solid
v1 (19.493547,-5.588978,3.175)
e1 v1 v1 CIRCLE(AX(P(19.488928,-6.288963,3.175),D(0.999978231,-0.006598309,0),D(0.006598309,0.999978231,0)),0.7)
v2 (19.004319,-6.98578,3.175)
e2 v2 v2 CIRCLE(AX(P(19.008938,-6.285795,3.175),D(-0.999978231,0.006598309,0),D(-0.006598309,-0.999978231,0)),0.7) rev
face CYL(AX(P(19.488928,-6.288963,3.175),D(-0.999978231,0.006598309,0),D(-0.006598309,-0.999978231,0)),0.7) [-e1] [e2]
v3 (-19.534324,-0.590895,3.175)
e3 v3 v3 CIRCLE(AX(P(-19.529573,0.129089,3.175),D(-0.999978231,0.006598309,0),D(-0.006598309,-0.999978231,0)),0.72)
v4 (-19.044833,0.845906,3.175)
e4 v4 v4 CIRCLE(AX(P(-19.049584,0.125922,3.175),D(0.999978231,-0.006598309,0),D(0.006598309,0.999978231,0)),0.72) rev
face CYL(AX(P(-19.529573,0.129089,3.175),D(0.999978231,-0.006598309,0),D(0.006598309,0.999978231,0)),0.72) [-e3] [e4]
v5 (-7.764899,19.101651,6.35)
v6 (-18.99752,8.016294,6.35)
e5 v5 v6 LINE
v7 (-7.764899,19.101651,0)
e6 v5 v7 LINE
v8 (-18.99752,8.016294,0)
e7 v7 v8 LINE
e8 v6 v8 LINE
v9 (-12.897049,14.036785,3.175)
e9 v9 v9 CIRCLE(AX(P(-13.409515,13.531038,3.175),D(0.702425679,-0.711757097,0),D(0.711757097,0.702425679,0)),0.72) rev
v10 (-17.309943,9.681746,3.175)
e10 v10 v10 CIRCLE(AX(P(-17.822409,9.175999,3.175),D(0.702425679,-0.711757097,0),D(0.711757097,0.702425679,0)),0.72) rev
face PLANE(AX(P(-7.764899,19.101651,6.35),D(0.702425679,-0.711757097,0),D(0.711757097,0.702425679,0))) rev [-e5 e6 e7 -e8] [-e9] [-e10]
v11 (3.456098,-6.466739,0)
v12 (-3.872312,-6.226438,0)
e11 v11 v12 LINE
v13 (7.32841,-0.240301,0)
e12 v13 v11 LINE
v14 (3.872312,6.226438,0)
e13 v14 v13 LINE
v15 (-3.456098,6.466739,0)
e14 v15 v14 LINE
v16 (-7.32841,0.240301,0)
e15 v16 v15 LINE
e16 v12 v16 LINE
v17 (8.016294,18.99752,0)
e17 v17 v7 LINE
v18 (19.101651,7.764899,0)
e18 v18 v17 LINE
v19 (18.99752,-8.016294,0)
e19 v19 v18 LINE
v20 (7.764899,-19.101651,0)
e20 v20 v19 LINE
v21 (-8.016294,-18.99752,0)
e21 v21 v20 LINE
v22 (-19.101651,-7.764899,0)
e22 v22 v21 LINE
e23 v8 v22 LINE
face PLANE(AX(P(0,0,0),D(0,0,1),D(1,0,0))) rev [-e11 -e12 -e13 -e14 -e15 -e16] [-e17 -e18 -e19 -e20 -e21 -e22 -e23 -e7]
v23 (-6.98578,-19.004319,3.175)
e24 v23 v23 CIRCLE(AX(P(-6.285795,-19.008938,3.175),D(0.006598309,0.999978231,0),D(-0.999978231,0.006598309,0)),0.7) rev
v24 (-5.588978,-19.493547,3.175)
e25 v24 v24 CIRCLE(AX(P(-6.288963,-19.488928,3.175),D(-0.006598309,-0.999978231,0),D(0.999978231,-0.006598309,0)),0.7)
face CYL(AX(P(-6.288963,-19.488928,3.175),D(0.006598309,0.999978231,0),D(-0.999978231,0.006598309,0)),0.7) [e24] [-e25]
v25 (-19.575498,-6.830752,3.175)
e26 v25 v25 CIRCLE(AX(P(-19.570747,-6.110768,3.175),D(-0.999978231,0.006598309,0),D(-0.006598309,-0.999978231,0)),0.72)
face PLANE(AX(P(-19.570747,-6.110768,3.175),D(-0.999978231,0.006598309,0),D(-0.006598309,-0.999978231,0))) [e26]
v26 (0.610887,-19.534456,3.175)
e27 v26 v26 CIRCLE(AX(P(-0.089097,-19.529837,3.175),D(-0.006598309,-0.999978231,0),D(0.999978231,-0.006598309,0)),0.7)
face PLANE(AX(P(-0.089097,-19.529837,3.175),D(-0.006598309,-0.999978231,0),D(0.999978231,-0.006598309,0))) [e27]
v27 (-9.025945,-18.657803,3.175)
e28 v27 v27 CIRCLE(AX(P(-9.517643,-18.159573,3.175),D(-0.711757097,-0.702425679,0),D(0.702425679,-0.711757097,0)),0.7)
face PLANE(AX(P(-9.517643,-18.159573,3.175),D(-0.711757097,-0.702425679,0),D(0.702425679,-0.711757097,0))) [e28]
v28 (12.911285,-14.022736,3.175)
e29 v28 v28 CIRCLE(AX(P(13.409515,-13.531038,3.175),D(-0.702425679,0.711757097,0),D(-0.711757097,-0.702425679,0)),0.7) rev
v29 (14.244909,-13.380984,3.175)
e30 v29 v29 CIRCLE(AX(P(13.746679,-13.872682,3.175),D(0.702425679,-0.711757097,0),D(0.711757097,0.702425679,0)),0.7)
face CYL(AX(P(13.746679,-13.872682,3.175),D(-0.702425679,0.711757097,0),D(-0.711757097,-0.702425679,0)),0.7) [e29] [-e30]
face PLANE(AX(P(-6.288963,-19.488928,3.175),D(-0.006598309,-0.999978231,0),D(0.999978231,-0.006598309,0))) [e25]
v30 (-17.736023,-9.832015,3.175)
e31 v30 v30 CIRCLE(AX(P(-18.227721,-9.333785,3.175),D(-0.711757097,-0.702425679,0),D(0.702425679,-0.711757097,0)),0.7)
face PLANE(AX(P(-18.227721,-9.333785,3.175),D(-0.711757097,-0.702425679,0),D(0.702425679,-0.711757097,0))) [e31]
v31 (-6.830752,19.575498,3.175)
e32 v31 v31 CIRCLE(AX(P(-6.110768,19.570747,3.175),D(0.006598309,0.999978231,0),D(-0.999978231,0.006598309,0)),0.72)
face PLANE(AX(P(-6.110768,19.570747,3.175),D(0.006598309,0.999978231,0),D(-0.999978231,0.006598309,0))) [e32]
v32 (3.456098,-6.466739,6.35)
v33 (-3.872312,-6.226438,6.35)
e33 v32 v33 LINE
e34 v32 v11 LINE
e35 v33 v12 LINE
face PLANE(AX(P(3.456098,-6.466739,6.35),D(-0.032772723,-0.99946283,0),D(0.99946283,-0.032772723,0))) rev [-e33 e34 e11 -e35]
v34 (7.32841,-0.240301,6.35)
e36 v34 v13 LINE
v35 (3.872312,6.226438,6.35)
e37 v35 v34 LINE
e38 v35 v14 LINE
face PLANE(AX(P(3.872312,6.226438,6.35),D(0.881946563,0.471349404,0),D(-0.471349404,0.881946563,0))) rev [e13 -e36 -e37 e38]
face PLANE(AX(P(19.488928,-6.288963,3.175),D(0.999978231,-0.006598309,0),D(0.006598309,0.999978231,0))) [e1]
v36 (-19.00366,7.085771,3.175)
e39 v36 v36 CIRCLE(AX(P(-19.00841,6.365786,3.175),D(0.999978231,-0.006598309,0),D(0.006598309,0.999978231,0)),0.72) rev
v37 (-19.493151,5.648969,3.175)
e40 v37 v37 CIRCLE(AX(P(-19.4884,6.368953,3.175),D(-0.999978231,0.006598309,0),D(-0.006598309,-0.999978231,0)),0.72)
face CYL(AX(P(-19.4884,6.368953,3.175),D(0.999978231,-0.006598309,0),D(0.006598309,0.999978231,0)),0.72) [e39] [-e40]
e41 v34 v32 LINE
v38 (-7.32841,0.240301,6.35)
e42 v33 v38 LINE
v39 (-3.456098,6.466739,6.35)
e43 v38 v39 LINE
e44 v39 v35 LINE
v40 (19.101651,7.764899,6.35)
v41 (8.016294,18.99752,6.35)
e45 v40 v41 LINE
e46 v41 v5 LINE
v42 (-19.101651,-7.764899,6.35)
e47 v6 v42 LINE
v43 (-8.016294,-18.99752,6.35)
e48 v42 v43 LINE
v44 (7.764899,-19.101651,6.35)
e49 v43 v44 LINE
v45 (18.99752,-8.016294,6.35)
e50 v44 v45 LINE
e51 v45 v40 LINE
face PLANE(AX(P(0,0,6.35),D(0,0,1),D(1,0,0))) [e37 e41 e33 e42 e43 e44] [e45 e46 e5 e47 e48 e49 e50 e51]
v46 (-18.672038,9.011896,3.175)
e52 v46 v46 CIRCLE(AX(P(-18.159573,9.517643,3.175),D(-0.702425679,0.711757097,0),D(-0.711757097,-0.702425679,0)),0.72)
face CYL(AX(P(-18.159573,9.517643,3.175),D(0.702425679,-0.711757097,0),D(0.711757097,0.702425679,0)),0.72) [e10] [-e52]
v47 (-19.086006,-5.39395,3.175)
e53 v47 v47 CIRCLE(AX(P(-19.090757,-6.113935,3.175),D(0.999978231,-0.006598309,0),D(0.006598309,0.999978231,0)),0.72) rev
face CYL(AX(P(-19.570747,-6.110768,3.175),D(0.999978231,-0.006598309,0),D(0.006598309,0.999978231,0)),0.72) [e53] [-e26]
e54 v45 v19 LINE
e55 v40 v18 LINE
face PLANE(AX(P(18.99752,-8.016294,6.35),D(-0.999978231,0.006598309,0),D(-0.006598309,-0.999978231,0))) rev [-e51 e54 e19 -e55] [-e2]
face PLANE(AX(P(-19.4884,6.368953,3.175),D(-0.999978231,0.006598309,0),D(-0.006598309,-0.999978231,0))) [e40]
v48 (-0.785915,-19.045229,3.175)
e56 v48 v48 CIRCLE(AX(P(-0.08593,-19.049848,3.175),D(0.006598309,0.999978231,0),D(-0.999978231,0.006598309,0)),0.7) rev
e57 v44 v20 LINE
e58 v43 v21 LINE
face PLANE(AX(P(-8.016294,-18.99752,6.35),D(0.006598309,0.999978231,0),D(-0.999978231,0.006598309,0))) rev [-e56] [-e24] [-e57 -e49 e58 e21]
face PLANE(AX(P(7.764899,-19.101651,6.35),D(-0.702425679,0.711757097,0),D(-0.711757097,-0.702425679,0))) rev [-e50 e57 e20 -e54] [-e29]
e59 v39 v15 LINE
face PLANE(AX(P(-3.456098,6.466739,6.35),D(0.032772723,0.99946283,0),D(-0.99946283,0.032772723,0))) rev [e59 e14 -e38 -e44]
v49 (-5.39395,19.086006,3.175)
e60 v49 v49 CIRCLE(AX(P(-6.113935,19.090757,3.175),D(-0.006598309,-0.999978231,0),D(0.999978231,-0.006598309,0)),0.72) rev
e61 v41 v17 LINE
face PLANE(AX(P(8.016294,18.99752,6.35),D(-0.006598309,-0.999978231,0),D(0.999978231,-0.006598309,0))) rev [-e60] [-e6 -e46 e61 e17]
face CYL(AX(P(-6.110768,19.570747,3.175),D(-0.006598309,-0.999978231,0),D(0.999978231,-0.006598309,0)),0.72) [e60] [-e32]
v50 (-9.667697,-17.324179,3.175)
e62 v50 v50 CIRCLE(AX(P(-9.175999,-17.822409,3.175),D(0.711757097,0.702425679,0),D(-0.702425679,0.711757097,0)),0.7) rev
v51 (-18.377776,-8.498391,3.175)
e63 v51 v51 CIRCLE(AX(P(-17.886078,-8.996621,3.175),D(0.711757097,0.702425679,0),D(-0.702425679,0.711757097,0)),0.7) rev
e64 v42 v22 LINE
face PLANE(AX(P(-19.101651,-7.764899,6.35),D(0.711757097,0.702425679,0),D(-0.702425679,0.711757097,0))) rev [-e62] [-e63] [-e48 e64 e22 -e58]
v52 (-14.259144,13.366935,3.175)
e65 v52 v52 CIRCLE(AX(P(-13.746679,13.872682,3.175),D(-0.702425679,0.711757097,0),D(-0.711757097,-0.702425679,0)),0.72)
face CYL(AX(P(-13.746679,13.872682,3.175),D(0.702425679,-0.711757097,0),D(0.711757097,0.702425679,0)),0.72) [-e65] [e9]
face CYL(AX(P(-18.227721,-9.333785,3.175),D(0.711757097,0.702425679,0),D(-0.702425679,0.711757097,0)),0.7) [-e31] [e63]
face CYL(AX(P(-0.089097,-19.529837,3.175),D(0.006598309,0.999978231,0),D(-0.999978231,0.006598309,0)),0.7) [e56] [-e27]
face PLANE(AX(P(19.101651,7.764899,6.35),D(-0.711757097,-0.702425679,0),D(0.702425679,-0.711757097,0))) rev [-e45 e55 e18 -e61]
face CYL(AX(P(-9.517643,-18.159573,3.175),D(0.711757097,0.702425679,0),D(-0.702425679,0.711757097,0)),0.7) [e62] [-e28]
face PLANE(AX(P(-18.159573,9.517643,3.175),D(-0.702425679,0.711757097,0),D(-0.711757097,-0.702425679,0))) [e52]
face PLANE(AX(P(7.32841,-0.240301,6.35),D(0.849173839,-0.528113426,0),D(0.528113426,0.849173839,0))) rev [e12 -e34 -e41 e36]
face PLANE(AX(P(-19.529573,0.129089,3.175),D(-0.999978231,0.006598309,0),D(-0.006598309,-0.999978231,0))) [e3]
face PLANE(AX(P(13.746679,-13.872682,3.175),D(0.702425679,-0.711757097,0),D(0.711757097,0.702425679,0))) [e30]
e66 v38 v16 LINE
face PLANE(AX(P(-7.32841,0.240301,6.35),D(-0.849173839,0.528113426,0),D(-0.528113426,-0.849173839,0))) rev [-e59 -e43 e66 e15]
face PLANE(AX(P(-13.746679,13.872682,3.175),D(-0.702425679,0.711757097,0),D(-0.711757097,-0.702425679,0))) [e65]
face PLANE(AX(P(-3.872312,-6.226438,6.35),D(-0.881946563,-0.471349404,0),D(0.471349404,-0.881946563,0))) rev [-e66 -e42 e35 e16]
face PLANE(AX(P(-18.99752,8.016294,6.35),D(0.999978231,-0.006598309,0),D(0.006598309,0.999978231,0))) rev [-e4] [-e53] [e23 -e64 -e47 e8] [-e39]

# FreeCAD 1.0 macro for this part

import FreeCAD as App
import Part
import Sketcher

V = App.Vector


def add_polygon(sketch, points):
    """Adds a closed chain of lines whose ends are joined by coincident constraints."""
    first, n = sketch.GeometryCount, len(points)
    for a, b in zip(points, points[1:] + points[:1]):
        sketch.addGeometry(Part.LineSegment(App.Vector(*a, 0), App.Vector(*b, 0)), False)
    for i in range(n):
        sketch.addConstraint(Sketcher.Constraint("Coincident", first + i, 2, first + (i + 1) % n, 1))

doc = App.newDocument("Part")
body = doc.addObject("PartDesign::Body", "Body")

sketch1 = doc.addObject("Sketcher::SketchObject", "Sketch")
body.addObject(sketch1)
sketch1.AttachmentSupport = (doc.XY_Plane, [""])
sketch1.MapMode = "FlatFace"
add_polygon(sketch1, [(-8, 19), (-19, 8), (-19, -8), (-8, -19), (8, -19), (19, -8), (19, 8), (8, 19)])
sketch1.addConstraint([
    Sketcher.Constraint("Symmetric", 0, 2, 4, 2, -1, 1),
    Sketcher.Constraint("Symmetric", 1, 2, 5, 2, -1, 1),
    Sketcher.Constraint("Symmetric", 2, 2, 6, 2, -1, 1),
    Sketcher.Constraint("Symmetric", 3, 2, 7, 2, -1, 1),
    Sketcher.Constraint("Perpendicular", 0, 2),
    Sketcher.Constraint("Perpendicular", 1, 3),
    Sketcher.Constraint("Equal", 0, 1),
    Sketcher.Constraint("Equal", 1, 2),
    Sketcher.Constraint("Equal", 2, 3),
    Sketcher.Constraint("DistanceY", 1, 2, -1, 1, 7.764899),
    Sketcher.Constraint("DistanceX", 0, 2, -1, 1, 18.99752),
    Sketcher.Constraint("DistanceX", 1, 2, -1, 1, 19.101651),
])
pad1 = doc.addObject("PartDesign::Pad", "Pad")
body.addObject(pad1)
pad1.Profile = sketch1
pad1.Length = 6.35

sketch2 = doc.addObject("Sketcher::SketchObject", "Sketch001")
body.addObject(sketch2)
sketch2.Placement = App.Placement(V(0.125698, 19.049585, 0), App.Rotation(V(0.999978231, -0.006598309, 0), V(0, 0, -1), V(0.006598309, 0.999978231, 0), "ZXY"))
sketch2.addGeometry(Part.Circle(V(-6.2, -3.2, 0), V(0, 0, 1), 0.7), False)
sketch2.addConstraint([
    Sketcher.Constraint("Diameter", 0, 1.44),
    Sketcher.Constraint("DistanceY", 0, 3, -1, 1, 3.175),
    Sketcher.Constraint("DistanceX", 0, 3, -1, 1, 6.239768),
])
pad2 = doc.addObject("PartDesign::Pad", "Pad001")
body.addObject(pad2)
pad2.Profile = sketch2
pad2.Length = 0.48

sketch3 = doc.addObject("Sketcher::SketchObject", "Sketch002")
body.addObject(sketch3)
sketch3.Placement = App.Placement(V(-13.381209, 13.558973, 0), App.Rotation(V(0.711757097, 0.702425679, 0), V(0, 0, -1), V(-0.702425679, 0.711757097, 0), "ZXY"))
sketch3.addGeometry([
    Part.Circle(V(-6.2, -3.2, 0), V(0, 0, 1), 0.7),
    Part.Circle(V(0, -3.2, 0), V(0, 0, 1), 0.7),
], False)
sketch3.addConstraint([
    Sketcher.Constraint("Equal", 0, 1),
    Sketcher.Constraint("Horizontal", 0, 3, 1, 3),
    Sketcher.Constraint("Diameter", 0, 1.44),
    Sketcher.Constraint("DistanceX", 0, 3, 1, 3, 6.2),
    Sketcher.Constraint("DistanceY", 0, 3, -1, 1, 3.175),
    Sketcher.Constraint("DistanceX", 0, 3, -1, 1, 6.239768),
])
pad3 = doc.addObject("PartDesign::Pad", "Pad002")
body.addObject(pad3)
pad3.Profile = sketch3
pad3.Length = 0.48

sketch4 = doc.addObject("Sketcher::SketchObject", "Sketch003")
body.addObject(sketch4)
sketch4.Placement = App.Placement(V(-19.049585, 0.125698, 0), App.Rotation(V(0, 0, 1), V(0.006598309, 0.999978231, 0), V(-0.999978231, 0.006598309, 0), "ZXY"))
sketch4.addGeometry([
    Part.Circle(V(3.2, -6.2, 0), V(0, 0, 1), 0.7),
    Part.Circle(V(3.2, 0, 0), V(0, 0, 1), 0.7),
    Part.Circle(V(3.2, 6.2, 0), V(0, 0, 1), 0.7),
], False)
sketch4.addConstraint([
    Sketcher.Constraint("Equal", 0, 1),
    Sketcher.Constraint("Equal", 1, 2),
    Sketcher.Constraint("Vertical", 0, 3, 1, 3),
    Sketcher.Constraint("Vertical", 1, 3, 2, 3),
    Sketcher.Constraint("Diameter", 0, 1.44),
    Sketcher.Constraint("DistanceY", 1, 3, 2, 3, 6.24),
    Sketcher.Constraint("DistanceX", -1, 1, 0, 3, 3.175),
    Sketcher.Constraint("DistanceY", 0, 3, -1, 1, 6.239768),
    Sketcher.Constraint("DistanceY", -1, 1, 1, 3, 0.000224),
])
pad4 = doc.addObject("PartDesign::Pad", "Pad003")
body.addObject(pad4)
pad4.Profile = sketch4
pad4.Length = 0.48

sketch5 = doc.addObject("Sketcher::SketchObject", "Sketch004")
body.addObject(sketch5)
sketch5.Placement = App.Placement(V(-13.558973, -13.381209, 0), App.Rotation(V(0, 0, 1), V(-0.702425679, 0.711757097, 0), V(-0.711757097, -0.702425679, 0), "ZXY"))
sketch5.addGeometry([
    Part.Circle(V(3.2, -6.2, 0), V(0, 0, 1), 0.7),
    Part.Circle(V(3.2, 6.2, 0), V(0, 0, 1), 0.7),
], False)
sketch5.addConstraint([
    Sketcher.Constraint("Equal", 0, 1),
    Sketcher.Constraint("Vertical", 0, 3, 1, 3),
    Sketcher.Constraint("Diameter", 0, 1.4),
    Sketcher.Constraint("DistanceY", 0, 3, 1, 3, 12.4),
    Sketcher.Constraint("DistanceX", -1, 1, 0, 3, 3.175),
    Sketcher.Constraint("DistanceY", 0, 3, -1, 1, 6.239768),
])
pad5 = doc.addObject("PartDesign::Pad", "Pad004")
body.addObject(pad5)
pad5.Profile = sketch5
pad5.Length = 0.48

sketch6 = doc.addObject("Sketcher::SketchObject", "Sketch005")
body.addObject(sketch6)
sketch6.Placement = App.Placement(V(-0.125698, -19.049585, 0), App.Rotation(V(-0.999978231, 0.006598309, 0), V(0, 0, -1), V(-0.006598309, -0.999978231, 0), "ZXY"))
sketch6.addGeometry([
    Part.Circle(V(0, -3.2, 0), V(0, 0, 1), 0.7),
    Part.Circle(V(6.2, -3.2, 0), V(0, 0, 1), 0.7),
], False)
sketch6.addConstraint([
    Sketcher.Constraint("Equal", 0, 1),
    Sketcher.Constraint("Horizontal", 0, 3, 1, 3),
    Sketcher.Constraint("Diameter", 0, 1.4),
    Sketcher.Constraint("DistanceX", 0, 3, 1, 3, 6.2),
    Sketcher.Constraint("DistanceY", 0, 3, -1, 1, 3.175),
    Sketcher.Constraint("DistanceX", 0, 3, -1, 1, 0.039768),
])
pad6 = doc.addObject("PartDesign::Pad", "Pad005")
body.addObject(pad6)
pad6.Profile = sketch6
pad6.Length = 0.48

sketch7 = doc.addObject("Sketcher::SketchObject", "Sketch006")
body.addObject(sketch7)
sketch7.Placement = App.Placement(V(13.381209, -13.558973, 0), App.Rotation(V(-0.711757097, -0.702425679, 0), V(0, 0, -1), V(0.702425679, -0.711757097, 0), "ZXY"))
sketch7.addGeometry(Part.Circle(V(0, -3.2, 0), V(0, 0, 1), 0.7), False)
sketch7.addConstraint([
    Sketcher.Constraint("Diameter", 0, 1.4),
    Sketcher.Constraint("DistanceY", 0, 3, -1, 1, 3.175),
    Sketcher.Constraint("DistanceX", 0, 3, -1, 1, 0.039768),
])
pad7 = doc.addObject("PartDesign::Pad", "Pad006")
body.addObject(pad7)
pad7.Profile = sketch7
pad7.Length = 0.48

sketch8 = doc.addObject("Sketcher::SketchObject", "Sketch007")
body.addObject(sketch8)
sketch8.Placement = App.Placement(V(19.049585, -0.125698, 0), App.Rotation(V(0, 0, -1), V(0.006598309, 0.999978231, 0), V(0.999978231, -0.006598309, 0), "ZXY"))
sketch8.addGeometry(Part.Circle(V(-3.2, -6.2, 0), V(0, 0, 1), 0.7), False)
sketch8.addConstraint([
    Sketcher.Constraint("Diameter", 0, 1.4),
    Sketcher.Constraint("DistanceX", 0, 3, -1, 1, 3.175),
    Sketcher.Constraint("DistanceY", 0, 3, -1, 1, 6.160232),
])
pad8 = doc.addObject("PartDesign::Pad", "Pad007")
body.addObject(pad8)
pad8.Profile = sketch8
pad8.Length = 0.48

sketch9 = doc.addObject("Sketcher::SketchObject", "Sketch008")
body.addObject(sketch9)
sketch9.AttachmentSupport = (doc.XY_Plane, [""])
sketch9.MapMode = "FlatFace"
add_polygon(sketch9, [(4, 6), (7, 0), (3, -6), (-4, -6), (-7, 0), (-3, 6)])
sketch9.addConstraint([
    Sketcher.Constraint("Symmetric", 0, 2, 3, 2, -1, 1),
    Sketcher.Constraint("Symmetric", 1, 2, 4, 2, -1, 1),
    Sketcher.Constraint("Symmetric", 2, 2, 5, 2, -1, 1),
    Sketcher.Constraint("Equal", 0, 1),
    Sketcher.Constraint("Equal", 1, 2),
    Sketcher.Constraint("DistanceY", 0, 2, -1, 1, 0.240301),
    Sketcher.Constraint("DistanceX", -1, 1, 1, 2, 3.456098),
    Sketcher.Constraint("DistanceY", 1, 2, 2, 2, 0.240301),
    Sketcher.Constraint("DistanceX", 3, 2, 2, 2, 3.456098),
])
pocket1 = doc.addObject("PartDesign::Pocket", "Pocket")
body.addObject(pocket1)
pocket1.Profile = sketch9
pocket1.Type = "ThroughAll"
pocket1.Reversed = True

doc.recompute()
